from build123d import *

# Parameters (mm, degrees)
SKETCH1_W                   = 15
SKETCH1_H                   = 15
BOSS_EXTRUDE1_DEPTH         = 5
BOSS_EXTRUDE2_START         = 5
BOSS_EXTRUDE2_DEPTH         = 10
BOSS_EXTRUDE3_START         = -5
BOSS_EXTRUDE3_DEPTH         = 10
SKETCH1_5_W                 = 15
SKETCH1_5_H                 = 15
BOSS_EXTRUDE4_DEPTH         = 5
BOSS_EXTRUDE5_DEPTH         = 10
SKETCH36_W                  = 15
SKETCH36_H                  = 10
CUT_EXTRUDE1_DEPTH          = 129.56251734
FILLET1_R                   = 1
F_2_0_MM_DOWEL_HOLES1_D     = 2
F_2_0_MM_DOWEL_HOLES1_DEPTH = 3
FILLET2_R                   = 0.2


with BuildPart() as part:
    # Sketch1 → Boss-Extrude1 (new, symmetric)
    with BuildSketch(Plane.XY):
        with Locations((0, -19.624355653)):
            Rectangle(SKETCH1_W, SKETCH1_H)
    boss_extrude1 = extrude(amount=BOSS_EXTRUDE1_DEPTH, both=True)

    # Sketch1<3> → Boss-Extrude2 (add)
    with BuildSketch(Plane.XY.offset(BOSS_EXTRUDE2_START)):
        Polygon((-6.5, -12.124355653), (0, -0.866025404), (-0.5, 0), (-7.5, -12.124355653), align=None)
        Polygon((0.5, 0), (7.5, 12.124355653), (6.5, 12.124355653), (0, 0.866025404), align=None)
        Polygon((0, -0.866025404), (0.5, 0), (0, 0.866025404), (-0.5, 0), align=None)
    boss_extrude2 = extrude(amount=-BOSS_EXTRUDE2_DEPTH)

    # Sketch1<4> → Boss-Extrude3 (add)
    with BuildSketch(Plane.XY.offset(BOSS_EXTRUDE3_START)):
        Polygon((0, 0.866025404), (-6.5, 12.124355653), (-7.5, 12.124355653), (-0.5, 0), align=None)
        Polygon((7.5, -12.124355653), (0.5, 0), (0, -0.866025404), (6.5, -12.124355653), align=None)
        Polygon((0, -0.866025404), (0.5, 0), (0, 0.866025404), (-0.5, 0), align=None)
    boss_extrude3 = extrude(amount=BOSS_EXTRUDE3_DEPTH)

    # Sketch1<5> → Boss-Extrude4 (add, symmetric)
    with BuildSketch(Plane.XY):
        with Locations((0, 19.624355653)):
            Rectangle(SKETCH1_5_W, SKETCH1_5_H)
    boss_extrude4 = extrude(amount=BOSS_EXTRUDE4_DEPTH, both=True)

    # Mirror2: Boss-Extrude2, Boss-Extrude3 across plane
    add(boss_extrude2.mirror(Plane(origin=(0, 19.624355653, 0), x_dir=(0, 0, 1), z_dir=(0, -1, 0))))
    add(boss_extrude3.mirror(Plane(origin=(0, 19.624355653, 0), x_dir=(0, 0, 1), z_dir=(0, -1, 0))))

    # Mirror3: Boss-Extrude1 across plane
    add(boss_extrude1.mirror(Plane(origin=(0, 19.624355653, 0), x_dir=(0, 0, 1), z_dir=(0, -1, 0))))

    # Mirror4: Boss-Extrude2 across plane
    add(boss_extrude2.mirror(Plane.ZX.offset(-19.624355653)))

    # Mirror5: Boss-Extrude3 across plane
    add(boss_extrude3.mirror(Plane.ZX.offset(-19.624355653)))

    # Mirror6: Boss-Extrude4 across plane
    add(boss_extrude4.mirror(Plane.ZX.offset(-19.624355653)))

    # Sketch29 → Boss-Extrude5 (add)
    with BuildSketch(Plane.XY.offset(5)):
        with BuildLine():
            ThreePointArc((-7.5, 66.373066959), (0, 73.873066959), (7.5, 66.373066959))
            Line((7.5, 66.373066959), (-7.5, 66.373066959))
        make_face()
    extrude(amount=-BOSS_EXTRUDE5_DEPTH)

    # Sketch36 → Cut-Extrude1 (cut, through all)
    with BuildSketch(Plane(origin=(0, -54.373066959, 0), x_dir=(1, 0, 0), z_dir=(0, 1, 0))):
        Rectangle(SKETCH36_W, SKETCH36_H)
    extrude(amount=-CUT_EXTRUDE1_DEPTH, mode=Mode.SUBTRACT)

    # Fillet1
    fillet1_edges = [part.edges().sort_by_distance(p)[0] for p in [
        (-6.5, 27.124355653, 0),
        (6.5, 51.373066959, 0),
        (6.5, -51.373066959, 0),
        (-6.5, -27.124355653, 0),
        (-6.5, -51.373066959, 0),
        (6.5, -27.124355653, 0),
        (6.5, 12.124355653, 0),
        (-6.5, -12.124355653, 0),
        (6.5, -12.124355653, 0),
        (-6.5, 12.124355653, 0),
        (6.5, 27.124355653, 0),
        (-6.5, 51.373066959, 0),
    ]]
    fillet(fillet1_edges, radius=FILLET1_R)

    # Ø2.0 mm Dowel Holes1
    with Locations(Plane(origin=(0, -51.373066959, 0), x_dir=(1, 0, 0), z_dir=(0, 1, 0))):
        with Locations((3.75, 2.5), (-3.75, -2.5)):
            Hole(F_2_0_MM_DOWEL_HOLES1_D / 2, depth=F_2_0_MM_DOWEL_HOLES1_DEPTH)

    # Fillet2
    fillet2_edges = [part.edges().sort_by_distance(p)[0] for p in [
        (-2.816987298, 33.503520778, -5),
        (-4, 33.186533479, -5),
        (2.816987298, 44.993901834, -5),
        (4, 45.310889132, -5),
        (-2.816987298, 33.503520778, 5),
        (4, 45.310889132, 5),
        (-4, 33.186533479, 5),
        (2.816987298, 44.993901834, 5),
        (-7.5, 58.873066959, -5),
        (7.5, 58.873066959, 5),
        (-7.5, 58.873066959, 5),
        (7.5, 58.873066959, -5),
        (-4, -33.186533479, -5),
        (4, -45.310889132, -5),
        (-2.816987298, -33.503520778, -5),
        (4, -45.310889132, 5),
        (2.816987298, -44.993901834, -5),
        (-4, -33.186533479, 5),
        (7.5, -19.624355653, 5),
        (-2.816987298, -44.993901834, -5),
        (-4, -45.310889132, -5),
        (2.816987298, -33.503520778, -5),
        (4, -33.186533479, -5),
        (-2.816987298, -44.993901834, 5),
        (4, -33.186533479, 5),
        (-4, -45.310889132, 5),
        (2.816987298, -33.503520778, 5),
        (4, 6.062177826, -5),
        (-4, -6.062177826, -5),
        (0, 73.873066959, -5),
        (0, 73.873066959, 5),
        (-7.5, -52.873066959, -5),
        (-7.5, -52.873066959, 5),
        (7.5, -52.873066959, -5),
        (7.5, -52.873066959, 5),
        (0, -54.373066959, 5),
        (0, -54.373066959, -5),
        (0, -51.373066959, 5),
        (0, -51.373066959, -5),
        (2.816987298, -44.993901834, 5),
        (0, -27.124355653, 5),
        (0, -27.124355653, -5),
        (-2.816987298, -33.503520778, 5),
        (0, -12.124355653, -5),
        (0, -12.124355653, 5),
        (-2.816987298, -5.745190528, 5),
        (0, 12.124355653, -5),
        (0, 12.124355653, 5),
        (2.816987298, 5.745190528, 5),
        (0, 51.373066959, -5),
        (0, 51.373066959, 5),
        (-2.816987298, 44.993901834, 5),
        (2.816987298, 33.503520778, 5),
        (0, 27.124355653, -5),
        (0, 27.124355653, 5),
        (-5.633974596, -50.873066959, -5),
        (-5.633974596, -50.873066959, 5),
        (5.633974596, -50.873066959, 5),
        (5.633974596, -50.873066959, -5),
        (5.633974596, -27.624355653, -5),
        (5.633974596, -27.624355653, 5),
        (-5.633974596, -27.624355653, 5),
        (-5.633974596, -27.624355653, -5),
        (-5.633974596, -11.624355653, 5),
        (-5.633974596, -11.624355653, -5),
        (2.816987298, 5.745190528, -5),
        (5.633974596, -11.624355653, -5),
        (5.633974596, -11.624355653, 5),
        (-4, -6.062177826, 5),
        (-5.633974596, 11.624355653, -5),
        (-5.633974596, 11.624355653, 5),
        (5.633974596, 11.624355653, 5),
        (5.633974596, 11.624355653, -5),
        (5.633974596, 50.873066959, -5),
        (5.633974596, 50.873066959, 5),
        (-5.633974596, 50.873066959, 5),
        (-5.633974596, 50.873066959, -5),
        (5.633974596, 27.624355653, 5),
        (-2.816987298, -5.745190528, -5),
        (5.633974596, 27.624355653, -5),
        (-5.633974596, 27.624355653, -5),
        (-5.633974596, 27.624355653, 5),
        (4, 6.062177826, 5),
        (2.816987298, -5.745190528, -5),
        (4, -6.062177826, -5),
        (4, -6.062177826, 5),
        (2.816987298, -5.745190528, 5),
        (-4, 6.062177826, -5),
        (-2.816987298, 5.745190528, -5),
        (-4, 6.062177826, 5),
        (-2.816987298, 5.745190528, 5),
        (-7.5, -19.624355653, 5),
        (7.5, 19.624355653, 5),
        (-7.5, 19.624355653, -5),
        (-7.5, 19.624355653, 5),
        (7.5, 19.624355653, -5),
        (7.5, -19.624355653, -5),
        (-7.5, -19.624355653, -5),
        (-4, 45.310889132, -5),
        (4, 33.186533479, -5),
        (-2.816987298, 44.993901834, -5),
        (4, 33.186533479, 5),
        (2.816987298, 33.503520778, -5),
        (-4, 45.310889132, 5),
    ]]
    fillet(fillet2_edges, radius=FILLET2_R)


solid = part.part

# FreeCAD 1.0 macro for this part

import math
import FreeCAD as App
import Part
import Sketcher

V = App.Vector
Q = App.Units.Quantity


def edges_at(feature, points):
    """Names of the edges that pass closest to the given points."""
    edges = feature.Shape.Edges
    near = lambda p: min(range(len(edges)), key=lambda i: edges[i].distToShape(Part.Vertex(*p))[0])
    return sorted({f"Edge{near(p) + 1}" for p in points})

doc = App.newDocument("Part")
body = doc.addObject("PartDesign::Body", "Body")

# Sketch on XY plane
sketch1 = doc.addObject("Sketcher::SketchObject", "Sketch")
body.addObject(sketch1)
sketch1.AttachmentSupport = (doc.XY_Plane, [""])
sketch1.MapMode = "FlatFace"
sketch1.addGeometry(Part.LineSegment(V(-8, -12, 0), V(-8, -27, 0)), False)
sketch1.addGeometry(Part.LineSegment(V(-8, -27, 0), V(8, -27, 0)), False)
sketch1.addGeometry(Part.LineSegment(V(8, -27, 0), V(8, -12, 0)), False)
sketch1.addGeometry(Part.LineSegment(V(8, -12, 0), V(-8, -12, 0)), False)
sketch1.addConstraint(Sketcher.Constraint("Coincident", 0, 2, 1, 1))
sketch1.addConstraint(Sketcher.Constraint("Coincident", 1, 2, 2, 1))
sketch1.addConstraint(Sketcher.Constraint("Coincident", 2, 2, 3, 1))
sketch1.addConstraint(Sketcher.Constraint("Coincident", 3, 2, 0, 1))
sketch1.addConstraint(Sketcher.Constraint("Vertical", 0))
sketch1.addConstraint(Sketcher.Constraint("Horizontal", 1))
sketch1.addConstraint(Sketcher.Constraint("Vertical", 2))
sketch1.addConstraint(Sketcher.Constraint("Horizontal", 3))
sketch1.addConstraint(Sketcher.Constraint("Equal", 3, 0))
sketch1.addConstraint(Sketcher.Constraint("DistanceX", 1, 1, 1, 2, 15.0))
sketch1.addConstraint(Sketcher.Constraint("DistanceX", 0, 2, -1, 1, 7.5))
sketch1.addConstraint(Sketcher.Constraint("DistanceY", 0, 2, -1, 1, 27.124356))
pad1 = doc.addObject("PartDesign::Pad", "Pad")
body.addObject(pad1)
pad1.Profile = sketch1
pad1.Length = 10
pad1.Midplane = True

# Sketch on XY plane
sketch2 = doc.addObject("Sketcher::SketchObject", "Sketch001")
body.addObject(sketch2)
sketch2.AttachmentSupport = (doc.XY_Plane, [""])
sketch2.MapMode = "FlatFace"
sketch2.AttachmentOffset = App.Placement(V(0, 0, 5), App.Rotation())
sketch2.addGeometry(Part.LineSegment(V(-6.5, -12.1, 0), V(0, -0.9, 0)), False)
sketch2.addGeometry(Part.LineSegment(V(0, -0.9, 0), V(0.5, 0, 0)), False)
sketch2.addGeometry(Part.LineSegment(V(0.5, 0, 0), V(7.5, 12.1, 0)), False)
sketch2.addGeometry(Part.LineSegment(V(7.5, 12.1, 0), V(6.5, 12.1, 0)), False)
sketch2.addGeometry(Part.LineSegment(V(6.5, 12.1, 0), V(0, 0.9, 0)), False)
sketch2.addGeometry(Part.LineSegment(V(0, 0.9, 0), V(-0.5, 0, 0)), False)
sketch2.addGeometry(Part.LineSegment(V(-0.5, 0, 0), V(-7.5, -12.1, 0)), False)
sketch2.addGeometry(Part.LineSegment(V(-7.5, -12.1, 0), V(-6.5, -12.1, 0)), False)
sketch2.addConstraint(Sketcher.Constraint("Coincident", 0, 2, 1, 1))
sketch2.addConstraint(Sketcher.Constraint("Coincident", 1, 2, 2, 1))
sketch2.addConstraint(Sketcher.Constraint("Coincident", 2, 2, 3, 1))
sketch2.addConstraint(Sketcher.Constraint("Coincident", 3, 2, 4, 1))
sketch2.addConstraint(Sketcher.Constraint("Coincident", 4, 2, 5, 1))
sketch2.addConstraint(Sketcher.Constraint("Coincident", 5, 2, 6, 1))
sketch2.addConstraint(Sketcher.Constraint("Coincident", 6, 2, 7, 1))
sketch2.addConstraint(Sketcher.Constraint("Coincident", 7, 2, 0, 1))
sketch2.addConstraint(Sketcher.Constraint("Horizontal", 3))
sketch2.addConstraint(Sketcher.Constraint("Horizontal", 7))
sketch2.addConstraint(Sketcher.Constraint("Symmetric", 0, 2, 4, 2, -1, 1))
sketch2.addConstraint(Sketcher.Constraint("Symmetric", 1, 2, 5, 2, -1, 1))
sketch2.addConstraint(Sketcher.Constraint("Symmetric", 2, 2, 6, 2, -1, 1))
sketch2.addConstraint(Sketcher.Constraint("PointOnObject", 0, 2, -2))
sketch2.addConstraint(Sketcher.Constraint("PointOnObject", 1, 2, -1))
sketch2.addConstraint(Sketcher.Constraint("Parallel", 0, 1))
sketch2.addConstraint(Sketcher.Constraint("Parallel", 1, 2))
sketch2.addConstraint(Sketcher.Constraint("Parallel", 2, 4))
sketch2.addConstraint(Sketcher.Constraint("DistanceX", 3, 2, 3, 1, 1.0))
sketch2.addConstraint(Sketcher.Constraint("Angle", 0, Q("60 deg")))
sketch2.addConstraint(Sketcher.Constraint("Distance", 0, 13.0))
pad2 = doc.addObject("PartDesign::Pad", "Pad001")
body.addObject(pad2)
pad2.Profile = sketch2
pad2.Length = 10
pad2.Reversed = True

# Sketch on XY plane
sketch3 = doc.addObject("Sketcher::SketchObject", "Sketch002")
body.addObject(sketch3)
sketch3.AttachmentSupport = (doc.XY_Plane, [""])
sketch3.MapMode = "FlatFace"
sketch3.AttachmentOffset = App.Placement(V(0, 0, -5), App.Rotation())
sketch3.addGeometry(Part.LineSegment(V(0, 0.9, 0), V(-6.5, 12.1, 0)), False)
sketch3.addGeometry(Part.LineSegment(V(-6.5, 12.1, 0), V(-7.5, 12.1, 0)), False)
sketch3.addGeometry(Part.LineSegment(V(-7.5, 12.1, 0), V(-0.5, 0, 0)), False)
sketch3.addGeometry(Part.LineSegment(V(-0.5, 0, 0), V(0, -0.9, 0)), False)
sketch3.addGeometry(Part.LineSegment(V(0, -0.9, 0), V(6.5, -12.1, 0)), False)
sketch3.addGeometry(Part.LineSegment(V(6.5, -12.1, 0), V(7.5, -12.1, 0)), False)
sketch3.addGeometry(Part.LineSegment(V(7.5, -12.1, 0), V(0.5, 0, 0)), False)
sketch3.addGeometry(Part.LineSegment(V(0.5, 0, 0), V(0, 0.9, 0)), False)
sketch3.addConstraint(Sketcher.Constraint("Coincident", 0, 2, 1, 1))
sketch3.addConstraint(Sketcher.Constraint("Coincident", 1, 2, 2, 1))
sketch3.addConstraint(Sketcher.Constraint("Coincident", 2, 2, 3, 1))
sketch3.addConstraint(Sketcher.Constraint("Coincident", 3, 2, 4, 1))
sketch3.addConstraint(Sketcher.Constraint("Coincident", 4, 2, 5, 1))
sketch3.addConstraint(Sketcher.Constraint("Coincident", 5, 2, 6, 1))
sketch3.addConstraint(Sketcher.Constraint("Coincident", 6, 2, 7, 1))
sketch3.addConstraint(Sketcher.Constraint("Coincident", 7, 2, 0, 1))
sketch3.addConstraint(Sketcher.Constraint("Horizontal", 1))
sketch3.addConstraint(Sketcher.Constraint("Horizontal", 5))
sketch3.addConstraint(Sketcher.Constraint("Symmetric", 0, 2, 4, 2, -1, 1))
sketch3.addConstraint(Sketcher.Constraint("Symmetric", 2, 2, 6, 2, -1, 1))
sketch3.addConstraint(Sketcher.Constraint("Symmetric", 3, 2, 7, 2, -1, 1))
sketch3.addConstraint(Sketcher.Constraint("PointOnObject", 2, 2, -1))
sketch3.addConstraint(Sketcher.Constraint("PointOnObject", 3, 2, -2))
sketch3.addConstraint(Sketcher.Constraint("Parallel", 0, 2))
sketch3.addConstraint(Sketcher.Constraint("Parallel", 2, 3))
sketch3.addConstraint(Sketcher.Constraint("Parallel", 4, 6))
sketch3.addConstraint(Sketcher.Constraint("DistanceX", 1, 2, 1, 1, 1.0))
sketch3.addConstraint(Sketcher.Constraint("Angle", 0, Q("120 deg")))
sketch3.addConstraint(Sketcher.Constraint("Distance", 0, 13.0))
pad3 = doc.addObject("PartDesign::Pad", "Pad002")
body.addObject(pad3)
pad3.Profile = sketch3
pad3.Length = 10

# Sketch on XY plane
sketch4 = doc.addObject("Sketcher::SketchObject", "Sketch003")
body.addObject(sketch4)
sketch4.AttachmentSupport = (doc.XY_Plane, [""])
sketch4.MapMode = "FlatFace"
sketch4.addGeometry(Part.LineSegment(V(-8, 27, 0), V(-8, 12, 0)), False)
sketch4.addGeometry(Part.LineSegment(V(-8, 12, 0), V(8, 12, 0)), False)
sketch4.addGeometry(Part.LineSegment(V(8, 12, 0), V(8, 27, 0)), False)
sketch4.addGeometry(Part.LineSegment(V(8, 27, 0), V(-8, 27, 0)), False)
sketch4.addConstraint(Sketcher.Constraint("Coincident", 0, 2, 1, 1))
sketch4.addConstraint(Sketcher.Constraint("Coincident", 1, 2, 2, 1))
sketch4.addConstraint(Sketcher.Constraint("Coincident", 2, 2, 3, 1))
sketch4.addConstraint(Sketcher.Constraint("Coincident", 3, 2, 0, 1))
sketch4.addConstraint(Sketcher.Constraint("Vertical", 0))
sketch4.addConstraint(Sketcher.Constraint("Horizontal", 1))
sketch4.addConstraint(Sketcher.Constraint("Vertical", 2))
sketch4.addConstraint(Sketcher.Constraint("Horizontal", 3))
sketch4.addConstraint(Sketcher.Constraint("Equal", 3, 0))
sketch4.addConstraint(Sketcher.Constraint("DistanceX", 1, 1, 1, 2, 15.0))
sketch4.addConstraint(Sketcher.Constraint("DistanceX", 0, 2, -1, 1, 7.5))
sketch4.addConstraint(Sketcher.Constraint("DistanceY", -1, 1, 0, 2, 12.124356))
pad4 = doc.addObject("PartDesign::Pad", "Pad003")
body.addObject(pad4)
pad4.Profile = sketch4
pad4.Length = 10
pad4.Midplane = True
doc.recompute()

datumplane = doc.addObject("PartDesign::Plane", "DatumPlane")
body.addObject(datumplane)
datumplane.AttachmentSupport = (doc.XZ_Plane, [""])
datumplane.MapMode = "FlatFace"
datumplane.AttachmentOffset = App.Placement(V(0, 0, -19.624356), App.Rotation())
mirrored = doc.addObject("PartDesign::Mirrored", "Mirrored")
body.addObject(mirrored)
mirrored.Originals = [pad2, pad3]
mirrored.MirrorPlane = (datumplane, [""])
body.Tip = mirrored
doc.recompute()

datumplane2 = doc.addObject("PartDesign::Plane", "DatumPlane001")
body.addObject(datumplane2)
datumplane2.AttachmentSupport = (doc.XZ_Plane, [""])
datumplane2.MapMode = "FlatFace"
datumplane2.AttachmentOffset = App.Placement(V(0, 0, -19.624356), App.Rotation())
mirrored2 = doc.addObject("PartDesign::Mirrored", "Mirrored001")
body.addObject(mirrored2)
mirrored2.Originals = [pad1]
mirrored2.MirrorPlane = (datumplane2, [""])
body.Tip = mirrored2
doc.recompute()

datumplane3 = doc.addObject("PartDesign::Plane", "DatumPlane002")
body.addObject(datumplane3)
datumplane3.AttachmentSupport = (doc.XZ_Plane, [""])
datumplane3.MapMode = "FlatFace"
datumplane3.AttachmentOffset = App.Placement(V(0, 0, 19.624356), App.Rotation())
mirrored3 = doc.addObject("PartDesign::Mirrored", "Mirrored002")
body.addObject(mirrored3)
mirrored3.Originals = [pad2]
mirrored3.MirrorPlane = (datumplane3, [""])
body.Tip = mirrored3
doc.recompute()

datumplane4 = doc.addObject("PartDesign::Plane", "DatumPlane003")
body.addObject(datumplane4)
datumplane4.AttachmentSupport = (doc.XZ_Plane, [""])
datumplane4.MapMode = "FlatFace"
datumplane4.AttachmentOffset = App.Placement(V(0, 0, 19.624356), App.Rotation())
mirrored4 = doc.addObject("PartDesign::Mirrored", "Mirrored003")
body.addObject(mirrored4)
mirrored4.Originals = [pad3]
mirrored4.MirrorPlane = (datumplane4, [""])
body.Tip = mirrored4
doc.recompute()

datumplane5 = doc.addObject("PartDesign::Plane", "DatumPlane004")
body.addObject(datumplane5)
datumplane5.AttachmentSupport = (doc.XZ_Plane, [""])
datumplane5.MapMode = "FlatFace"
datumplane5.AttachmentOffset = App.Placement(V(0, 0, 19.624356), App.Rotation())
mirrored5 = doc.addObject("PartDesign::Mirrored", "Mirrored004")
body.addObject(mirrored5)
mirrored5.Originals = [pad4]
mirrored5.MirrorPlane = (datumplane5, [""])
body.Tip = mirrored5

# Sketch on XY plane
sketch5 = doc.addObject("Sketcher::SketchObject", "Sketch004")
body.addObject(sketch5)
sketch5.AttachmentSupport = (doc.XY_Plane, [""])
sketch5.MapMode = "FlatFace"
sketch5.AttachmentOffset = App.Placement(V(0, 0, 5), App.Rotation())
sketch5.addGeometry(Part.ArcOfCircle(Part.Circle(V(0, 66, 0), V(0, 0, 1), 8), math.radians(0), math.radians(180)), False)
sketch5.addGeometry(Part.LineSegment(V(-8, 66, 0), V(8, 66, 0)), False)
sketch5.addConstraint(Sketcher.Constraint("Coincident", 0, 1, 1, 2))
sketch5.addConstraint(Sketcher.Constraint("Coincident", 1, 1, 0, 2))
sketch5.addConstraint(Sketcher.Constraint("Horizontal", 1))
sketch5.addConstraint(Sketcher.Constraint("PointOnObject", 0, 3, -2))
sketch5.addConstraint(Sketcher.Constraint("Radius", 0, 7.5))
sketch5.addConstraint(Sketcher.Constraint("DistanceY", -1, 1, 0, 3, 66.373067))
sketch5.addConstraint(Sketcher.Constraint("DistanceY", -1, 1, 0, 1, 66.373067))
pad5 = doc.addObject("PartDesign::Pad", "Pad004")
body.addObject(pad5)
pad5.Profile = sketch5
pad5.Length = 10
pad5.Reversed = True

# Sketch on XZ plane
sketch6 = doc.addObject("Sketcher::SketchObject", "Sketch005")
body.addObject(sketch6)
sketch6.AttachmentSupport = (doc.XZ_Plane, [""])
sketch6.MapMode = "FlatFace"
sketch6.AttachmentOffset = App.Placement(V(0, 0, 54.373067), App.Rotation())
sketch6.addGeometry(Part.LineSegment(V(-8, -5, 0), V(-8, 5, 0)), False)
sketch6.addGeometry(Part.LineSegment(V(-8, 5, 0), V(8, 5, 0)), False)
sketch6.addGeometry(Part.LineSegment(V(8, 5, 0), V(8, -5, 0)), False)
sketch6.addGeometry(Part.LineSegment(V(8, -5, 0), V(-8, -5, 0)), False)
sketch6.addConstraint(Sketcher.Constraint("Coincident", 0, 2, 1, 1))
sketch6.addConstraint(Sketcher.Constraint("Coincident", 1, 2, 2, 1))
sketch6.addConstraint(Sketcher.Constraint("Coincident", 2, 2, 3, 1))
sketch6.addConstraint(Sketcher.Constraint("Coincident", 3, 2, 0, 1))
sketch6.addConstraint(Sketcher.Constraint("Vertical", 0))
sketch6.addConstraint(Sketcher.Constraint("Horizontal", 1))
sketch6.addConstraint(Sketcher.Constraint("Vertical", 2))
sketch6.addConstraint(Sketcher.Constraint("Horizontal", 3))
sketch6.addConstraint(Sketcher.Constraint("Symmetric", 0, 2, 2, 2, -1, 1))
sketch6.addConstraint(Sketcher.Constraint("DistanceX", 1, 1, 1, 2, 15.0))
sketch6.addConstraint(Sketcher.Constraint("DistanceY", 0, 1, 0, 2, 10.0))
pocket1 = doc.addObject("PartDesign::Pocket", "Pocket")
body.addObject(pocket1)
pocket1.Profile = sketch6
pocket1.Type = "ThroughAll"
pocket1.Reversed = True
doc.recompute()

fillet = doc.addObject("PartDesign::Fillet", "Fillet")
body.addObject(fillet)
fillet.Base = (pocket1, edges_at(pocket1, [
    (-6.5, 27.124, 0),
    (6.5, 51.373, 0),
    (6.5, -51.373, 0),
    (-6.5, -27.124, 0),
    (-6.5, -51.373, 0),
    (6.5, -27.124, 0),
    (6.5, 12.124, 0),
    (-6.5, -12.124, 0),
    (6.5, -12.124, 0),
    (-6.5, 12.124, 0),
    (6.5, 27.124, 0),
    (-6.5, 51.373, 0),
]))
fillet.Radius = 1

# Sketch on XZ plane
sketch7 = doc.addObject("Sketcher::SketchObject", "Sketch006")
body.addObject(sketch7)
sketch7.AttachmentSupport = (doc.XZ_Plane, [""])
sketch7.MapMode = "FlatFace"
sketch7.AttachmentOffset = App.Placement(V(0, 0, 51.373067), App.Rotation())
sketch7.addGeometry(Part.Circle(V(3.8, -2.5, 0), V(0, 0, 1), 1), False)
sketch7.addGeometry(Part.Circle(V(-3.8, 2.5, 0), V(0, 0, 1), 1), False)
sketch7.addConstraint(Sketcher.Constraint("Equal", 0, 1))
sketch7.addConstraint(Sketcher.Constraint("Symmetric", 0, 3, 1, 3, -1, 1))
sketch7.addConstraint(Sketcher.Constraint("Diameter", 0, 2.0))
sketch7.addConstraint(Sketcher.Constraint("DistanceY", 0, 3, 1, 3, 5.0))
sketch7.addConstraint(Sketcher.Constraint("DistanceX", 1, 3, 0, 3, 7.5))
doc.recompute()
hole = doc.addObject("PartDesign::Hole", "Hole")
body.addObject(hole)
hole.Profile = sketch7
hole.ThreadType = "None"
hole.Diameter = 2
hole.DepthType = "Dimension"
hole.Depth = 3
hole.DrillPoint = "Flat"
hole.Reversed = True
doc.recompute()

fillet2 = doc.addObject("PartDesign::Fillet", "Fillet001")
body.addObject(fillet2)
fillet2.Base = (hole, edges_at(hole, [
    (-2.817, 33.504, -5),
    (-4, 33.187, -5),
    (2.817, 44.994, -5),
    (4, 45.311, -5),
    (-2.817, 33.504, 5),
    (4, 45.311, 5),
    (-4, 33.187, 5),
    (2.817, 44.994, 5),
    (-7.5, 58.873, -5),
    (7.5, 58.873, 5),
    (-7.5, 58.873, 5),
    (7.5, 58.873, -5),
    (-4, -33.187, -5),
    (4, -45.311, -5),
    (-2.817, -33.504, -5),
    (4, -45.311, 5),
    (2.817, -44.994, -5),
    (-4, -33.187, 5),
    (7.5, -19.624, 5),
    (-2.817, -44.994, -5),
    (-4, -45.311, -5),
    (2.817, -33.504, -5),
    (4, -33.187, -5),
    (-2.817, -44.994, 5),
    (4, -33.187, 5),
    (-4, -45.311, 5),
    (2.817, -33.504, 5),
    (4, 6.062, -5),
    (-4, -6.062, -5),
    (0, 73.873, -5),
    (0, 73.873, 5),
    (-7.5, -52.873, -5),
    (-7.5, -52.873, 5),
    (7.5, -52.873, -5),
    (7.5, -52.873, 5),
    (0, -54.373, 5),
    (0, -54.373, -5),
    (0, -51.373, 5),
    (0, -51.373, -5),
    (2.817, -44.994, 5),
    (0, -27.124, 5),
    (0, -27.124, -5),
    (-2.817, -33.504, 5),
    (0, -12.124, -5),
    (0, -12.124, 5),
    (-2.817, -5.745, 5),
    (0, 12.124, -5),
    (0, 12.124, 5),
    (2.817, 5.745, 5),
    (0, 51.373, -5),
    (0, 51.373, 5),
    (-2.817, 44.994, 5),
    (2.817, 33.504, 5),
    (0, 27.124, -5),
    (0, 27.124, 5),
    (-5.634, -50.873, -5),
    (-5.634, -50.873, 5),
    (5.634, -50.873, 5),
    (5.634, -50.873, -5),
    (5.634, -27.624, -5),
    (5.634, -27.624, 5),
    (-5.634, -27.624, 5),
    (-5.634, -27.624, -5),
    (-5.634, -11.624, 5),
    (-5.634, -11.624, -5),
    (2.817, 5.745, -5),
    (5.634, -11.624, -5),
    (5.634, -11.624, 5),
    (-4, -6.062, 5),
    (-5.634, 11.624, -5),
    (-5.634, 11.624, 5),
    (5.634, 11.624, 5),
    (5.634, 11.624, -5),
    (5.634, 50.873, -5),
    (5.634, 50.873, 5),
    (-5.634, 50.873, 5),
    (-5.634, 50.873, -5),
    (5.634, 27.624, 5),
    (-2.817, -5.745, -5),
    (5.634, 27.624, -5),
    (-5.634, 27.624, -5),
    (-5.634, 27.624, 5),
    (4, 6.062, 5),
    (2.817, -5.745, -5),
    (4, -6.062, -5),
    (4, -6.062, 5),
    (2.817, -5.745, 5),
    (-4, 6.062, -5),
    (-2.817, 5.745, -5),
    (-4, 6.062, 5),
    (-2.817, 5.745, 5),
    (-7.5, -19.624, 5),
    (7.5, 19.624, 5),
    (-7.5, 19.624, -5),
    (-7.5, 19.624, 5),
    (7.5, 19.624, -5),
    (7.5, -19.624, -5),
    (-7.5, -19.624, -5),
    (-4, 45.311, -5),
    (4, 33.187, -5),
    (-2.817, 44.994, -5),
    (4, 33.187, 5),
    (2.817, 33.504, -5),
    (-4, 45.311, 5),
]))
fillet2.Radius = 0.2

doc.recompute()
